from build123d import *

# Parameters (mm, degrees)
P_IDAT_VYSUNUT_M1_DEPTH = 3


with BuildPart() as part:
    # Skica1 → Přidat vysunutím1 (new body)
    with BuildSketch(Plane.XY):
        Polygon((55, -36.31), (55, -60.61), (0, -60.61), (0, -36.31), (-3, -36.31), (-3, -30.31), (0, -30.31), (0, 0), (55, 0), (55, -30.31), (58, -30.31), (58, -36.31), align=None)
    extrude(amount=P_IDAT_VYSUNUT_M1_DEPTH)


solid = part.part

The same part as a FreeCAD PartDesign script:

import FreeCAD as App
import Part
import Sketcher
from FreeCAD import Vector

doc = App.newDocument("Part")
body = doc.addObject("PartDesign::Body", "Body")

sketch1 = body.newObject("Sketcher::SketchObject", "Sketch")
sketch1.AttachmentSupport = (doc.getObject("XY_Plane"), [""])
sketch1.MapMode = "FlatFace"
sketch1.addGeometry(Part.LineSegment(Vector(55, -60.6, 0), Vector(55, -36.3, 0)), False)
sketch1.addGeometry(Part.LineSegment(Vector(55, -36.3, 0), Vector(58, -36.3, 0)), False)
sketch1.addGeometry(Part.LineSegment(Vector(58, -36.3, 0), Vector(58, -30.3, 0)), False)
sketch1.addGeometry(Part.LineSegment(Vector(58, -30.3, 0), Vector(55, -30.3, 0)), False)
sketch1.addGeometry(Part.LineSegment(Vector(55, -30.3, 0), Vector(55, 0, 0)), False)
sketch1.addGeometry(Part.LineSegment(Vector(55, 0, 0), Vector(0, 0, 0)), False)
sketch1.addGeometry(Part.LineSegment(Vector(0, 0, 0), Vector(0, -30.3, 0)), False)
sketch1.addGeometry(Part.LineSegment(Vector(0, -30.3, 0), Vector(-3, -30.3, 0)), False)
sketch1.addGeometry(Part.LineSegment(Vector(-3, -30.3, 0), Vector(-3, -36.3, 0)), False)
sketch1.addGeometry(Part.LineSegment(Vector(-3, -36.3, 0), Vector(0, -36.3, 0)), False)
sketch1.addGeometry(Part.LineSegment(Vector(0, -36.3, 0), Vector(0, -60.6, 0)), False)
sketch1.addGeometry(Part.LineSegment(Vector(0, -60.6, 0), Vector(55, -60.6, 0)), False)
sketch1.addConstraint(Sketcher.Constraint("Coincident", 0, 2, 1, 1))
sketch1.addConstraint(Sketcher.Constraint("Coincident", 1, 2, 2, 1))
sketch1.addConstraint(Sketcher.Constraint("Coincident", 2, 2, 3, 1))
sketch1.addConstraint(Sketcher.Constraint("Coincident", 3, 2, 4, 1))
sketch1.addConstraint(Sketcher.Constraint("Coincident", 4, 2, 5, 1))
sketch1.addConstraint(Sketcher.Constraint("Coincident", 5, 2, 6, 1))
sketch1.addConstraint(Sketcher.Constraint("Coincident", 6, 2, 7, 1))
sketch1.addConstraint(Sketcher.Constraint("Coincident", 7, 2, 8, 1))
sketch1.addConstraint(Sketcher.Constraint("Coincident", 8, 2, 9, 1))
sketch1.addConstraint(Sketcher.Constraint("Coincident", 9, 2, 10, 1))
sketch1.addConstraint(Sketcher.Constraint("Coincident", 10, 2, 11, 1))
sketch1.addConstraint(Sketcher.Constraint("Coincident", 11, 2, 0, 1))
sketch1.addConstraint(Sketcher.Constraint("Vertical", 0))
sketch1.addConstraint(Sketcher.Constraint("Horizontal", 1))
sketch1.addConstraint(Sketcher.Constraint("Vertical", 2))
sketch1.addConstraint(Sketcher.Constraint("Horizontal", 3))
sketch1.addConstraint(Sketcher.Constraint("Vertical", 4))
sketch1.addConstraint(Sketcher.Constraint("Horizontal", 5))
sketch1.addConstraint(Sketcher.Constraint("Vertical", 6))
sketch1.addConstraint(Sketcher.Constraint("Horizontal", 7))
sketch1.addConstraint(Sketcher.Constraint("Vertical", 8))
sketch1.addConstraint(Sketcher.Constraint("Horizontal", 9))
sketch1.addConstraint(Sketcher.Constraint("Vertical", 10))
sketch1.addConstraint(Sketcher.Constraint("Horizontal", 11))
sketch1.addConstraint(Sketcher.Constraint("Coincident", 5, 2, -1, 1))
sketch1.addConstraint(Sketcher.Constraint("PointOnObject", 9, 2, -2))
sketch1.addConstraint(Sketcher.Constraint("Horizontal", 3, 2, 6, 2))
sketch1.addConstraint(Sketcher.Constraint("Horizontal", 1, 2, 8, 2))
sketch1.addConstraint(Sketcher.Constraint("Vertical", 0, 2, 3, 2))
sketch1.addConstraint(Sketcher.Constraint("Equal", 3, 7))
sketch1.addConstraint(Sketcher.Constraint("DistanceX", 1, 1, 1, 2, 3.0))
sketch1.addConstraint(Sketcher.Constraint("DistanceX", 5, 2, 5, 1, 55.0))
sketch1.addConstraint(Sketcher.Constraint("DistanceY", 2, 1, 2, 2, 6.0))
sketch1.addConstraint(Sketcher.Constraint("DistanceY", 0, 1, 0, 2, 24.3))
sketch1.addConstraint(Sketcher.Constraint("DistanceY", 4, 1, 4, 2, 30.31))
pad1 = body.newObject("PartDesign::Pad", "Pad")
pad1.Profile = sketch1
pad1.Length = 3

doc.recompute()
